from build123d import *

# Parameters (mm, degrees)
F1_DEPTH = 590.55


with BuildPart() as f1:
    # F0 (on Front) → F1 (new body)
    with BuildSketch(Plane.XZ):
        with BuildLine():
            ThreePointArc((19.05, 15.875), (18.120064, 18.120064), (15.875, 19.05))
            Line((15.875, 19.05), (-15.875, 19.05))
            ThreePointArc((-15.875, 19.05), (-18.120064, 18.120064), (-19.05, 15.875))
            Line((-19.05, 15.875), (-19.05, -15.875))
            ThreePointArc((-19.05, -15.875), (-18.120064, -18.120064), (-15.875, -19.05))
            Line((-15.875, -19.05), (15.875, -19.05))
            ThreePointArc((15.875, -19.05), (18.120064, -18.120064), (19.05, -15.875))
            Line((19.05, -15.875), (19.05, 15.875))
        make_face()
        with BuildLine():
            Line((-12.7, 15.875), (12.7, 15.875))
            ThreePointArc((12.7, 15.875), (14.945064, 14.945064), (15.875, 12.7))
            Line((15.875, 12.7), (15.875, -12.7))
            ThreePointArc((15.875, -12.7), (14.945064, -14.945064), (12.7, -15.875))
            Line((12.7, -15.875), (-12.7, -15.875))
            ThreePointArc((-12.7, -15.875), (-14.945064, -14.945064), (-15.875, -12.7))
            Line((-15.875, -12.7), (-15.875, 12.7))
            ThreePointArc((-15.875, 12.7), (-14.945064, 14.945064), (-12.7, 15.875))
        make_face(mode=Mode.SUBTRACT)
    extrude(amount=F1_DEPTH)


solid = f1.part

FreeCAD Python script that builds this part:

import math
import FreeCAD as App
import Part
import Sketcher

V = App.Vector
Q = App.Units.Quantity

doc = App.newDocument("Part")
body = doc.addObject("PartDesign::Body", "Body")

sketch1 = body.newObject("Sketcher::SketchObject", "Sketch")
sketch1.AttachmentSupport = (doc.getObject("XZ_Plane"), [""])
sketch1.MapMode = "FlatFace"
sketch1.addGeometry([
    Part.ArcOfCircle(Part.Circle(V(15.9, 15.9, 0), V(0, 0, 1), 3.2), math.radians(0), math.radians(90)),
    Part.LineSegment(V(15.9, 19.1, 0), V(-15.9, 19.1, 0)),
    Part.ArcOfCircle(Part.Circle(V(-15.9, 15.9, 0), V(0, 0, 1), 3.2), math.radians(90), math.radians(180)),
    Part.LineSegment(V(-19.1, 15.9, 0), V(-19.1, -15.9, 0)),
    Part.ArcOfCircle(Part.Circle(V(-15.9, -15.9, 0), V(0, 0, 1), 3.2), math.radians(-180), math.radians(-90)),
    Part.LineSegment(V(-15.9, -19.1, 0), V(15.9, -19.1, 0)),
    Part.ArcOfCircle(Part.Circle(V(15.9, -15.9, 0), V(0, 0, 1), 3.2), math.radians(-90), math.radians(0)),
    Part.LineSegment(V(19.1, -15.9, 0), V(19.1, 15.9, 0)),
    Part.ArcOfCircle(Part.Circle(V(-12.7, 12.7, 0), V(0, 0, 1), 3.2), math.radians(90), math.radians(180)),
    Part.LineSegment(V(-12.7, 15.9, 0), V(12.7, 15.9, 0)),
    Part.ArcOfCircle(Part.Circle(V(12.7, 12.7, 0), V(0, 0, 1), 3.2), math.radians(0), math.radians(90)),
    Part.LineSegment(V(15.9, 12.7, 0), V(15.9, -12.7, 0)),
    Part.ArcOfCircle(Part.Circle(V(12.7, -12.7, 0), V(0, 0, 1), 3.2), math.radians(-90), math.radians(0)),
    Part.LineSegment(V(12.7, -15.9, 0), V(-12.7, -15.9, 0)),
    Part.ArcOfCircle(Part.Circle(V(-12.7, -12.7, 0), V(0, 0, 1), 3.2), math.radians(-180), math.radians(-90)),
    Part.LineSegment(V(-15.9, -12.7, 0), V(-15.9, 12.7, 0)),
], False)
sketch1.addConstraint([
    Sketcher.Constraint("Tangent", 0, 2, 1, 1),
    Sketcher.Constraint("Tangent", 1, 2, 2, 1),
    Sketcher.Constraint("Tangent", 2, 2, 3, 1),
    Sketcher.Constraint("Tangent", 3, 2, 4, 1),
    Sketcher.Constraint("Tangent", 4, 2, 5, 1),
    Sketcher.Constraint("Tangent", 5, 2, 6, 1),
    Sketcher.Constraint("Tangent", 6, 2, 7, 1),
    Sketcher.Constraint("Tangent", 7, 2, 0, 1),
    Sketcher.Constraint("Tangent", 8, 1, 9, 1),
    Sketcher.Constraint("Tangent", 9, 2, 10, 2),
    Sketcher.Constraint("Tangent", 10, 1, 11, 1),
    Sketcher.Constraint("Tangent", 11, 2, 12, 2),
    Sketcher.Constraint("Tangent", 12, 1, 13, 1),
    Sketcher.Constraint("Tangent", 13, 2, 14, 2),
    Sketcher.Constraint("Tangent", 14, 1, 15, 1),
    Sketcher.Constraint("Tangent", 15, 2, 8, 2),
    Sketcher.Constraint("Horizontal", 1),
    Sketcher.Constraint("Vertical", 3),
    Sketcher.Constraint("Horizontal", 5),
    Sketcher.Constraint("Vertical", 7),
    Sketcher.Constraint("Horizontal", 9),
    Sketcher.Constraint("Vertical", 11),
    Sketcher.Constraint("Horizontal", 13),
    Sketcher.Constraint("Vertical", 15),
    Sketcher.Constraint("Equal", 0, 2),
    Sketcher.Constraint("Equal", 2, 4),
    Sketcher.Constraint("Equal", 4, 6),
    Sketcher.Constraint("Equal", 6, 8),
    Sketcher.Constraint("Equal", 8, 10),
    Sketcher.Constraint("Equal", 10, 12),
    Sketcher.Constraint("Equal", 12, 14),
    Sketcher.Constraint("Symmetric", 0, 3, 4, 3, -1, 1),
    Sketcher.Constraint("Symmetric", 8, 3, 12, 3, -1, 1),
    Sketcher.Constraint("Horizontal", 7, 2, 8, 1),
    Sketcher.Constraint("Vertical", 5, 2, 10, 1),
    Sketcher.Constraint("Equal", 5, 3),
    Sketcher.Constraint("DistanceX", 9, 1, 9, 2, Q("1 in")),
    Sketcher.Constraint("Radius", 0, Q("0.125 in")),
])
pad1 = body.newObject("PartDesign::Pad", "Pad")
pad1.Profile = sketch1
pad1.Length = Q("23.25 in")

doc.recompute()
